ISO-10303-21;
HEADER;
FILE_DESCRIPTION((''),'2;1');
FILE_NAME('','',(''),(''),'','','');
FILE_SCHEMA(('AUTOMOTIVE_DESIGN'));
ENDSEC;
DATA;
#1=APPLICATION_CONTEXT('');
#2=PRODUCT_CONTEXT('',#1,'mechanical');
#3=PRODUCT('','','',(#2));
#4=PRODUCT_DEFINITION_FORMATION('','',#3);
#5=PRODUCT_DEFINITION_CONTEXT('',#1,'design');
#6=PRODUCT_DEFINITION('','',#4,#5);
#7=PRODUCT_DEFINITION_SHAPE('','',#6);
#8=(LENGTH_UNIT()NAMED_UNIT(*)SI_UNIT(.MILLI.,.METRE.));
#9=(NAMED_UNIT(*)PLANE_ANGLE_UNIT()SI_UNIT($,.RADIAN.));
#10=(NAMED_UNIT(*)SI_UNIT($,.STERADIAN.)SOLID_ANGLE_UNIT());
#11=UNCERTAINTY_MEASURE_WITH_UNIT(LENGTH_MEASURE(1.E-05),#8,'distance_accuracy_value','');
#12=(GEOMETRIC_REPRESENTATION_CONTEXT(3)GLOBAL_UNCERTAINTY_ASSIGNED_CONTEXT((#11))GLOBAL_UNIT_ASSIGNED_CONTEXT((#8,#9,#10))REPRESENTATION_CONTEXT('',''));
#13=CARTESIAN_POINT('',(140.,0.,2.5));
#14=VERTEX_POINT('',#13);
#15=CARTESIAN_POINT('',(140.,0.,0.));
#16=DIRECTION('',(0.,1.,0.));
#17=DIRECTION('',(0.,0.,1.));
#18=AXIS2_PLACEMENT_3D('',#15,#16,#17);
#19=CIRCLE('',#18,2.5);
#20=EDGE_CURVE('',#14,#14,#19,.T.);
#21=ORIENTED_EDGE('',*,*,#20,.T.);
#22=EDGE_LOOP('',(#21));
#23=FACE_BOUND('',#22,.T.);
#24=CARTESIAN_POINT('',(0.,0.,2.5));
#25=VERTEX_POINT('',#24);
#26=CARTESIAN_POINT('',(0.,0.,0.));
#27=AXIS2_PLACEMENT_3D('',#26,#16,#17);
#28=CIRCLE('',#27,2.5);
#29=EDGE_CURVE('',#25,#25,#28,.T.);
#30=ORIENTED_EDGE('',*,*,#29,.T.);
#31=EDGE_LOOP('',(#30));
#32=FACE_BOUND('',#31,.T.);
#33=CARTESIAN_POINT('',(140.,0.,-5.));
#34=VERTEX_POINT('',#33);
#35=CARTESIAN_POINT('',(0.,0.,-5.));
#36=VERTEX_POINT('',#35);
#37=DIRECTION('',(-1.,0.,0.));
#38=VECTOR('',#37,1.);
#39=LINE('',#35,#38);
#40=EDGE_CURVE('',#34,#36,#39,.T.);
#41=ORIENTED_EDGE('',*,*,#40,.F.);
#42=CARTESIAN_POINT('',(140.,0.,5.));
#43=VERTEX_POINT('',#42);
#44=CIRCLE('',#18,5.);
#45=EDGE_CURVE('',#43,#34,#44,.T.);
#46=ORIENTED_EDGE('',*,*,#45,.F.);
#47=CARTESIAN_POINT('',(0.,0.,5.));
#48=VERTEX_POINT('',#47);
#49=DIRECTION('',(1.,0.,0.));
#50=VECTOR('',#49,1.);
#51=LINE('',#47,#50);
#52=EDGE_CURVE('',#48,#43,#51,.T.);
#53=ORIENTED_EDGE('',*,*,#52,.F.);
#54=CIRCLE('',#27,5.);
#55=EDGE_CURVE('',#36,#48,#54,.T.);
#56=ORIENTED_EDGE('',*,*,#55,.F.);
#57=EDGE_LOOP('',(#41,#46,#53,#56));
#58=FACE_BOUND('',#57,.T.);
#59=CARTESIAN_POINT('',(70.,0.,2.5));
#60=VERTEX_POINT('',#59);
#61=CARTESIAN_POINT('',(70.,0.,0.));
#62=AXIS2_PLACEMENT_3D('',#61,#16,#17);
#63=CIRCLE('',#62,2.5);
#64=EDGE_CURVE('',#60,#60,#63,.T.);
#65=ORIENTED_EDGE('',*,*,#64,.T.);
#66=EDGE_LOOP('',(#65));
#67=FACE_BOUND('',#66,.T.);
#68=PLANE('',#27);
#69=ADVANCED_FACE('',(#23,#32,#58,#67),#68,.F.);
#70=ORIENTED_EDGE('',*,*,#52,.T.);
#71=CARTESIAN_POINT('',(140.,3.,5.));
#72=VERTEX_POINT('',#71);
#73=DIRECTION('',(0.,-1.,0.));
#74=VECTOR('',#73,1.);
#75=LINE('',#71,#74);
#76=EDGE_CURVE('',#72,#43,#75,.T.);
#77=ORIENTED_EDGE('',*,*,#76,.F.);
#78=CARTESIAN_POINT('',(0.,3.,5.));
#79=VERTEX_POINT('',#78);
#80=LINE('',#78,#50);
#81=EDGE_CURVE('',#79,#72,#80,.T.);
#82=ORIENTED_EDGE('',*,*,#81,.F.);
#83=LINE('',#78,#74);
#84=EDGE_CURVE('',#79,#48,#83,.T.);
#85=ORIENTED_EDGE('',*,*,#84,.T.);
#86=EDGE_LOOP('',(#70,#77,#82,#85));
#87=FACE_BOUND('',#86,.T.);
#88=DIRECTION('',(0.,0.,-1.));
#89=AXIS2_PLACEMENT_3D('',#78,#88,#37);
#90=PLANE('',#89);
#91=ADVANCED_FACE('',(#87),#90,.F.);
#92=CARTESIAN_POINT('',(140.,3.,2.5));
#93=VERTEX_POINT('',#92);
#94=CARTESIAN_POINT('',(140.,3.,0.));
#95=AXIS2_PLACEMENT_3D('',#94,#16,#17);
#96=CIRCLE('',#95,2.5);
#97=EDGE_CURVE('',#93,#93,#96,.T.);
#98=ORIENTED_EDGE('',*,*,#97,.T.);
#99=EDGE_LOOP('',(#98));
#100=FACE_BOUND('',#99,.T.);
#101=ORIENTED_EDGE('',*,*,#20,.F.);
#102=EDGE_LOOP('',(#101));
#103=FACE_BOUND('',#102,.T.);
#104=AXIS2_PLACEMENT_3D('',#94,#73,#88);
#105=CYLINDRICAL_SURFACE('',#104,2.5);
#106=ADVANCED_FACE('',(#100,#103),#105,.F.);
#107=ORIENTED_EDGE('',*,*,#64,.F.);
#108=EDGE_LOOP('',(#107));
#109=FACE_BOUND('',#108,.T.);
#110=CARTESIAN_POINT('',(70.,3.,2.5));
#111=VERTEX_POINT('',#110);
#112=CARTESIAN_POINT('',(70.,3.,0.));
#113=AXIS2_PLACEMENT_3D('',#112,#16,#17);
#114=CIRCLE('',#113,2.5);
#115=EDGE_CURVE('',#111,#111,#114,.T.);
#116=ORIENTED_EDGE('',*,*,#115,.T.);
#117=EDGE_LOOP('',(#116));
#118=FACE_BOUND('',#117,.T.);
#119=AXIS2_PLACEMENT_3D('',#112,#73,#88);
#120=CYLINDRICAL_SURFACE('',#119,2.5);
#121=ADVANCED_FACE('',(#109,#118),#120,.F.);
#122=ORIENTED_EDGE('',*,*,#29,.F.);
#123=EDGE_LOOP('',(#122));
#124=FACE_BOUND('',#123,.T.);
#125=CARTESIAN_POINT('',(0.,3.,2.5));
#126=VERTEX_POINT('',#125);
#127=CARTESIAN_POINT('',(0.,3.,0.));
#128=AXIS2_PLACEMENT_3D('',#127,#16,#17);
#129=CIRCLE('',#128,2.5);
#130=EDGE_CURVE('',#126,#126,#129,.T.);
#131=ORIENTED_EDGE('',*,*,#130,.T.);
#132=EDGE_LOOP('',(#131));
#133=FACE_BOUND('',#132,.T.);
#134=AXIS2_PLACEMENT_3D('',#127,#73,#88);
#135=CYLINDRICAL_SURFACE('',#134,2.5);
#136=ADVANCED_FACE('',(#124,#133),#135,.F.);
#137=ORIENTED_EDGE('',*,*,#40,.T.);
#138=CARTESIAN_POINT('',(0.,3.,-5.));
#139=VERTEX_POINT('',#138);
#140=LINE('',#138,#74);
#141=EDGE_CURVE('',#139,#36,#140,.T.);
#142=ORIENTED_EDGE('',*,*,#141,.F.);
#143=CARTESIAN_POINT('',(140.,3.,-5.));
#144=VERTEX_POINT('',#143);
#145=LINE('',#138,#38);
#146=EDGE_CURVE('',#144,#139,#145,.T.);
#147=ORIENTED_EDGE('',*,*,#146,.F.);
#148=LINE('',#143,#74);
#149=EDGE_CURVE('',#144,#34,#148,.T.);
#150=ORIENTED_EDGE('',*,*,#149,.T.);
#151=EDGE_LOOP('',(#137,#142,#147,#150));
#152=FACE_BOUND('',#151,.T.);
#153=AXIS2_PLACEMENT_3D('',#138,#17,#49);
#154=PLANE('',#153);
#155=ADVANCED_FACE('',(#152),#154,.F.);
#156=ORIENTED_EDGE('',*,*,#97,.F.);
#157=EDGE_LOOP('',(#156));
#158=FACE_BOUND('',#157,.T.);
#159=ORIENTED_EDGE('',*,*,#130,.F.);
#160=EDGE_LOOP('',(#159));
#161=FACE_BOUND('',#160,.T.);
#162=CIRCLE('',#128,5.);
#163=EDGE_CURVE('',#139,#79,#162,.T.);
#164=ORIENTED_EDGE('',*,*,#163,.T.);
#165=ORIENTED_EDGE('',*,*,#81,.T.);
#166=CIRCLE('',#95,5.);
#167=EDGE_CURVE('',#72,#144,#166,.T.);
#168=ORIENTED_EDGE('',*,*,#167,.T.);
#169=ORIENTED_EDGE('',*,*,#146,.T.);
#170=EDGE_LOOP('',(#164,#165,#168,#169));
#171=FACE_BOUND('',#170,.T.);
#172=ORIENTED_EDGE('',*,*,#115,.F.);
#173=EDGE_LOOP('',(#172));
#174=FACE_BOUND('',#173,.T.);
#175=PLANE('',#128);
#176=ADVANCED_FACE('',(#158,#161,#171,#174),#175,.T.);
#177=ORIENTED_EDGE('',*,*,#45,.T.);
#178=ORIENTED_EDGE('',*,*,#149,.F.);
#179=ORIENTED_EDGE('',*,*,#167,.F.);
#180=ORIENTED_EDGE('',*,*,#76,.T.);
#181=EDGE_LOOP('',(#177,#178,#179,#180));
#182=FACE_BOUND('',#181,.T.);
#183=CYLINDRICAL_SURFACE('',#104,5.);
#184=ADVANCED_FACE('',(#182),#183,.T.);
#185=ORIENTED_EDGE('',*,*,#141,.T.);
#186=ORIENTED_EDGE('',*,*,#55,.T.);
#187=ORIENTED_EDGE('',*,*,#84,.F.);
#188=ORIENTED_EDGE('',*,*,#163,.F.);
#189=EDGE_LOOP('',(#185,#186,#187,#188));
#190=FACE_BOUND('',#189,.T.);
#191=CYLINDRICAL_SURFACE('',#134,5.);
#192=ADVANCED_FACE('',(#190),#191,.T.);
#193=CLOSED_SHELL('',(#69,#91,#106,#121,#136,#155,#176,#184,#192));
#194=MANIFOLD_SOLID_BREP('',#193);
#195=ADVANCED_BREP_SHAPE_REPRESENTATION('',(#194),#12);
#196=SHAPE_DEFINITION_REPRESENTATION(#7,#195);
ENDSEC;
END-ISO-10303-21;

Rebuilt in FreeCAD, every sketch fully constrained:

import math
import FreeCAD as App
import Part
import Sketcher
from FreeCAD import Vector

doc = App.newDocument("Part")
body = doc.addObject("PartDesign::Body", "Body")

# Sketch on XZ plane
sketch1 = doc.addObject("Sketcher::SketchObject", "Sketch")
body.addObject(sketch1)
sketch1.AttachmentSupport = (doc.XZ_Plane, [""])
sketch1.MapMode = "FlatFace"
sketch1.addGeometry([
    Part.LineSegment(Vector(140, -5, 0), Vector(0, -5, 0)),  # 0
    Part.ArcOfCircle(Part.Circle(Vector(0, 0, 0), Vector(0, 0, 1), 5), math.radians(90), math.radians(270)),  # 1
    Part.LineSegment(Vector(0, 5, 0), Vector(140, 5, 0)),  # 2
    Part.ArcOfCircle(Part.Circle(Vector(140, 0, 0), Vector(0, 0, 1), 5), math.radians(-90), math.radians(90)),  # 3
    Part.Circle(Vector(140, 0, 0), Vector(0, 0, 1), 2.5),  # 4
    Part.Circle(Vector(70, 0, 0), Vector(0, 0, 1), 2.5),  # 5
    Part.Circle(Vector(0, 0, 0), Vector(0, 0, 1), 2.5),  # 6
], False)
sketch1.addConstraint([
    Sketcher.Constraint("Tangent", 0, 2, 1, 2),
    Sketcher.Constraint("Tangent", 1, 1, 2, 1),
    Sketcher.Constraint("Tangent", 2, 2, 3, 2),
    Sketcher.Constraint("Tangent", 3, 1, 0, 1),
    Sketcher.Constraint("Horizontal", 0),
    Sketcher.Constraint("Horizontal", 2),
    Sketcher.Constraint("Coincident", 1, 3, -1, 1),
    Sketcher.Constraint("Coincident", 6, 3, -1, 1),
    Sketcher.Constraint("Coincident", 4, 3, 3, 3),
    Sketcher.Constraint("Equal", 4, 5),
    Sketcher.Constraint("Equal", 5, 6),
    Sketcher.Constraint("PointOnObject", 5, 3, -1),
    Sketcher.Constraint("Diameter", 4, 5.0),
    Sketcher.Constraint("Radius", 1, 5.0),
    Sketcher.Constraint("DistanceX", 0, 2, 0, 1, 140.0),
    Sketcher.Constraint("DistanceX", -1, 1, 5, 3, 70.0),
])
pad1 = doc.addObject("PartDesign::Pad", "Pad")
body.addObject(pad1)
pad1.Profile = sketch1
pad1.Length = 3
pad1.Reversed = True

doc.recompute()
